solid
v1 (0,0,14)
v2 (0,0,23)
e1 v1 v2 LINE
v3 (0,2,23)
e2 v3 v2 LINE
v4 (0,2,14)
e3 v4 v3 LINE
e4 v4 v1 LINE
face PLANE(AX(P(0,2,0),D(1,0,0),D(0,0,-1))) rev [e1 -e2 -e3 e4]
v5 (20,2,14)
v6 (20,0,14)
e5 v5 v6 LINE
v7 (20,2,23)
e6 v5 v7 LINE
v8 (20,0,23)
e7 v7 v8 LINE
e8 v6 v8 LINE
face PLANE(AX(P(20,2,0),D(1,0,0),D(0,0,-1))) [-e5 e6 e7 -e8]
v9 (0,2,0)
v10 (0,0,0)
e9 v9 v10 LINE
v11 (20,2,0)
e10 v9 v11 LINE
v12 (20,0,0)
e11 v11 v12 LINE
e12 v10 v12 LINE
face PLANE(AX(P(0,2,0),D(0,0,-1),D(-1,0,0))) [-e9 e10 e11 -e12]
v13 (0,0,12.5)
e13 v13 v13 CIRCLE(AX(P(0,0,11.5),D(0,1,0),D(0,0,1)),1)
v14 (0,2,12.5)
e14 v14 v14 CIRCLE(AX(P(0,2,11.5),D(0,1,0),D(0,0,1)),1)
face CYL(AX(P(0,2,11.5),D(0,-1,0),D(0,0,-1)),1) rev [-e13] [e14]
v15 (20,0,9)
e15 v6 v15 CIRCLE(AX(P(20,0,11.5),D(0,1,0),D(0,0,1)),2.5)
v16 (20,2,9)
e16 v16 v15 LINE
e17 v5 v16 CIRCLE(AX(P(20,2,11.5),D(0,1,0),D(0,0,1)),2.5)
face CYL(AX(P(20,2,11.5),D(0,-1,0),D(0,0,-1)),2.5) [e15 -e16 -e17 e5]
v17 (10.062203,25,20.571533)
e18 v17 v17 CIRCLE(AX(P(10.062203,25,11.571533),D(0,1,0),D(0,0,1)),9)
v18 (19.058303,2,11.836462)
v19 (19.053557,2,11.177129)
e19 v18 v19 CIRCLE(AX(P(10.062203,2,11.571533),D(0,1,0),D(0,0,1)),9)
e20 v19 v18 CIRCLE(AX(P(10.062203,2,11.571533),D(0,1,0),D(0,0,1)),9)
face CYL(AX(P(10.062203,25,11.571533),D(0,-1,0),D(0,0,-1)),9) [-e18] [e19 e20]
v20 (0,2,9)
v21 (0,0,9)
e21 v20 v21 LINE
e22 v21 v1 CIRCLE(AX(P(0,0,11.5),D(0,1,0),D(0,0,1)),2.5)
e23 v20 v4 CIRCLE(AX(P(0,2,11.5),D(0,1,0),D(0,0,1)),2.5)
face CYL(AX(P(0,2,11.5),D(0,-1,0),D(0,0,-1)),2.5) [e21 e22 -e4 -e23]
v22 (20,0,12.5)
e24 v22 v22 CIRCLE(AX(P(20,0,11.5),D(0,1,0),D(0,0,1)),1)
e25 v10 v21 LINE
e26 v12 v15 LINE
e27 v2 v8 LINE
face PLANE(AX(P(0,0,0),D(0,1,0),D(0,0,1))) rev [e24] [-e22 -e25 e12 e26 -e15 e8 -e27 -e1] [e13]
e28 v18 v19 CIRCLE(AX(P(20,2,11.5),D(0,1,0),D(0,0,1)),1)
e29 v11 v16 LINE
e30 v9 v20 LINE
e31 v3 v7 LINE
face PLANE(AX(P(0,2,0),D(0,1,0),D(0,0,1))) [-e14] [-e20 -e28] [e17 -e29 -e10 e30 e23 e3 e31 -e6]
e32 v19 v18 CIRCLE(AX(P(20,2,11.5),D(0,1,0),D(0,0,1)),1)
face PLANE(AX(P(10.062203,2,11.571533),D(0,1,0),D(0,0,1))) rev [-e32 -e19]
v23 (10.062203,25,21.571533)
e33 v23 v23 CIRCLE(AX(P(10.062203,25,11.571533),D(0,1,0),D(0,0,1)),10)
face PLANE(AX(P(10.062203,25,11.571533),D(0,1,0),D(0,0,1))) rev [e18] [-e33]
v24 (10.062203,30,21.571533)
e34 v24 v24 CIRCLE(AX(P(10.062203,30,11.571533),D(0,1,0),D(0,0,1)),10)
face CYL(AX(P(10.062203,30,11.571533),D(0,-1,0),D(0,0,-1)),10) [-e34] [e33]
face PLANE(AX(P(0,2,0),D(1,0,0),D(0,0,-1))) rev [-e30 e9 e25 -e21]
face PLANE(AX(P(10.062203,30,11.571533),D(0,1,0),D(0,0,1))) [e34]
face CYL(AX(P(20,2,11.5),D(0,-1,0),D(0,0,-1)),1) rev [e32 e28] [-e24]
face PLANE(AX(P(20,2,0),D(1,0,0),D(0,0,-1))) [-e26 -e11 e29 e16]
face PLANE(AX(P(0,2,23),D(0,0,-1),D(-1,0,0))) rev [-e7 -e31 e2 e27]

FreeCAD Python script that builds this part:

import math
import FreeCAD as App
import Part
import Sketcher

V = App.Vector
Q = App.Units.Quantity

doc = App.newDocument("Part")
params = doc.addObject("Spreadsheet::Sheet", "Params")
for row, (alias, value) in enumerate([
    ("sketch1_radius", "1 mm"),
    ("sketch1_radius2", "2.5 mm"),
    ("sketch1_width", "20 mm"),
    ("sketch1_height", "9 mm"),
    ("pad1_length", "2 mm"),
    ("sketch2_diameter", "18 mm"),
    ("pad2_length", "23 mm"),
    ("sketch3_diameter", "20 mm"),
    ("pad3_length", "5 mm"),
], start=1):
    params.set(f"A{row}", alias)
    params.set(f"B{row}", "=" + value)
    params.setAlias(f"B{row}", alias)

body = doc.addObject("PartDesign::Body", "Body")

# Sketch on XZ plane
sketch1 = body.newObject("Sketcher::SketchObject", "Sketch")
sketch1.AttachmentSupport = (doc.getObject("XZ_Plane"), [""])
sketch1.MapMode = "FlatFace"
sketch1.addGeometry([
    Part.LineSegment(V(0, 0, 0), V(0, 9, 0)),  # 0
    Part.ArcOfCircle(Part.Circle(V(0, 11.5, 0), V(0, 0, 1), 2.5), math.radians(90), math.radians(270)),  # 1
    Part.LineSegment(V(0, 14, 0), V(0, 23, 0)),  # 2
    Part.LineSegment(V(0, 23, 0), V(20, 23, 0)),  # 3
    Part.LineSegment(V(20, 23, 0), V(20, 14, 0)),  # 4
    Part.ArcOfCircle(Part.Circle(V(20, 11.5, 0), V(0, 0, 1), 2.5), math.radians(0), math.radians(90)),  # 5
    Part.ArcOfCircle(Part.Circle(V(20, 11.5, 0), V(0, 0, 1), 2.5), math.radians(-90), math.radians(0)),  # 6
    Part.LineSegment(V(20, 9, 0), V(20, 0, 0)),  # 7
    Part.LineSegment(V(20, 0, 0), V(0, 0, 0)),  # 8
    Part.ArcOfCircle(Part.Circle(V(20, 11.5, 0), V(0, 0, 1), 1), math.radians(90), math.radians(180)),  # 9
    Part.ArcOfCircle(Part.Circle(V(20, 11.5, 0), V(0, 0, 1), 1), math.radians(-180), math.radians(-90)),  # 10
    Part.ArcOfCircle(Part.Circle(V(20, 11.5, 0), V(0, 0, 1), 1), math.radians(-90), math.radians(0)),  # 11
    Part.ArcOfCircle(Part.Circle(V(20, 11.5, 0), V(0, 0, 1), 1), math.radians(0), math.radians(90)),  # 12
    Part.ArcOfCircle(Part.Circle(V(0, 11.5, 0), V(0, 0, 1), 1), math.radians(0), math.radians(90)),  # 13
    Part.ArcOfCircle(Part.Circle(V(0, 11.5, 0), V(0, 0, 1), 1), math.radians(90), math.radians(270)),  # 14
    Part.ArcOfCircle(Part.Circle(V(0, 11.5, 0), V(0, 0, 1), 1), math.radians(-90), math.radians(0)),  # 15
], False)
sketch1.addConstraint([
    Sketcher.Constraint("Coincident", 0, 2, 1, 2),
    Sketcher.Constraint("Coincident", 1, 1, 2, 1),
    Sketcher.Constraint("Coincident", 2, 2, 3, 1),
    Sketcher.Constraint("Coincident", 3, 2, 4, 1),
    Sketcher.Constraint("Coincident", 4, 2, 5, 2),
    Sketcher.Constraint("Tangent", 5, 1, 6, 2),
    Sketcher.Constraint("Coincident", 6, 1, 7, 1),
    Sketcher.Constraint("Coincident", 7, 2, 8, 1),
    Sketcher.Constraint("Coincident", 8, 2, 0, 1),
    Sketcher.Constraint("Tangent", 9, 2, 10, 1),
    Sketcher.Constraint("Tangent", 10, 2, 11, 1),
    Sketcher.Constraint("Tangent", 11, 2, 12, 1),
    Sketcher.Constraint("Tangent", 12, 2, 9, 1),
    Sketcher.Constraint("Tangent", 13, 2, 14, 1),
    Sketcher.Constraint("Tangent", 14, 2, 15, 1),
    Sketcher.Constraint("Tangent", 15, 2, 13, 1),
    Sketcher.Constraint("Vertical", 0),
    Sketcher.Constraint("Vertical", 2),
    Sketcher.Constraint("Horizontal", 3),
    Sketcher.Constraint("Vertical", 4),
    Sketcher.Constraint("Vertical", 7),
    Sketcher.Constraint("Horizontal", 8),
    Sketcher.Constraint("Coincident", 8, 2, -1, 1),
    Sketcher.Constraint("Coincident", 9, 3, 5, 3),
    Sketcher.Constraint("Coincident", 13, 3, 1, 3),
    Sketcher.Constraint("Equal", 1, 5),
    Sketcher.Constraint("Equal", 5, 6),
    Sketcher.Constraint("Equal", 9, 10),
    Sketcher.Constraint("Equal", 12, 13),
    Sketcher.Constraint("PointOnObject", 1, 3, -2),
    Sketcher.Constraint("PointOnObject", 1, 1, -2),
    Sketcher.Constraint("PointOnObject", 13, 2, -2),
    Sketcher.Constraint("PointOnObject", 14, 2, -2),
    Sketcher.Constraint("Horizontal", 1, 3, 5, 3),
    Sketcher.Constraint("Horizontal", 15, 3, 5, 1),
    Sketcher.Constraint("Horizontal", 5, 1, 9, 2),
    Sketcher.Constraint("Horizontal", 9, 2, 11, 2),
    Sketcher.Constraint("Horizontal", 11, 2, 15, 2),
    Sketcher.Constraint("Vertical", 12, 3, 3, 2),
    Sketcher.Constraint("Vertical", 4, 2, 6, 1),
    Sketcher.Constraint("Vertical", 7, 2, 10, 2),
    Sketcher.Constraint("Vertical", 10, 2, 12, 2),
    Sketcher.Constraint("Equal", 0, 2),
    Sketcher.Constraint("Radius", 9, Q("1 mm")),
    Sketcher.Constraint("Radius", 1, Q("2.5 mm")),
    Sketcher.Constraint("DistanceX", 3, 1, 3, 2, Q("20 mm")),
    Sketcher.Constraint("DistanceY", 0, 1, 0, 2, Q("9 mm")),
])
sketch1.setExpression("Constraints[43]", "Params.sketch1_radius")
sketch1.setExpression("Constraints[44]", "Params.sketch1_radius2")
sketch1.setExpression("Constraints[45]", "Params.sketch1_width")
sketch1.setExpression("Constraints[46]", "Params.sketch1_height")
pad1 = body.newObject("PartDesign::Pad", "Pad")
pad1.Profile = sketch1
pad1.setExpression("Length", "Params.pad1_length")
pad1.Reversed = True

# Sketch on XZ plane
sketch2 = body.newObject("Sketcher::SketchObject", "Sketch001")
sketch2.AttachmentSupport = (doc.getObject("XZ_Plane"), [""])
sketch2.MapMode = "FlatFace"
sketch2.AttachmentOffset = App.Placement(V(0, 0, -2), App.Rotation())
sketch2.addGeometry(Part.Circle(V(10, 12, 0), V(0, 0, 1), 9), False)
sketch2.addConstraint([
    Sketcher.Constraint("Diameter", 0, Q("18 mm")),
    Sketcher.Constraint("DistanceX", -1, 1, 0, 3, Q("10.062203 mm")),
    Sketcher.Constraint("DistanceY", -1, 1, 0, 3, Q("11.571533 mm")),
])
sketch2.setExpression("Constraints[0]", "Params.sketch2_diameter")
pad2 = body.newObject("PartDesign::Pad", "Pad001")
pad2.Profile = sketch2
pad2.setExpression("Length", "Params.pad2_length")
pad2.Reversed = True

# Sketch on XZ plane
sketch3 = body.newObject("Sketcher::SketchObject", "Sketch002")
sketch3.AttachmentSupport = (doc.getObject("XZ_Plane"), [""])
sketch3.MapMode = "FlatFace"
sketch3.AttachmentOffset = App.Placement(V(0, 0, -25), App.Rotation())
sketch3.addGeometry(Part.Circle(V(10, 12, 0), V(0, 0, 1), 10), False)
sketch3.addConstraint([
    Sketcher.Constraint("Diameter", 0, Q("20 mm")),
    Sketcher.Constraint("DistanceX", -1, 1, 0, 3, Q("10.062203 mm")),
    Sketcher.Constraint("DistanceY", -1, 1, 0, 3, Q("11.571533 mm")),
])
sketch3.setExpression("Constraints[0]", "Params.sketch3_diameter")
pad3 = body.newObject("PartDesign::Pad", "Pad002")
pad3.Profile = sketch3
pad3.setExpression("Length", "Params.pad3_length")
pad3.Reversed = True

doc.recompute()
